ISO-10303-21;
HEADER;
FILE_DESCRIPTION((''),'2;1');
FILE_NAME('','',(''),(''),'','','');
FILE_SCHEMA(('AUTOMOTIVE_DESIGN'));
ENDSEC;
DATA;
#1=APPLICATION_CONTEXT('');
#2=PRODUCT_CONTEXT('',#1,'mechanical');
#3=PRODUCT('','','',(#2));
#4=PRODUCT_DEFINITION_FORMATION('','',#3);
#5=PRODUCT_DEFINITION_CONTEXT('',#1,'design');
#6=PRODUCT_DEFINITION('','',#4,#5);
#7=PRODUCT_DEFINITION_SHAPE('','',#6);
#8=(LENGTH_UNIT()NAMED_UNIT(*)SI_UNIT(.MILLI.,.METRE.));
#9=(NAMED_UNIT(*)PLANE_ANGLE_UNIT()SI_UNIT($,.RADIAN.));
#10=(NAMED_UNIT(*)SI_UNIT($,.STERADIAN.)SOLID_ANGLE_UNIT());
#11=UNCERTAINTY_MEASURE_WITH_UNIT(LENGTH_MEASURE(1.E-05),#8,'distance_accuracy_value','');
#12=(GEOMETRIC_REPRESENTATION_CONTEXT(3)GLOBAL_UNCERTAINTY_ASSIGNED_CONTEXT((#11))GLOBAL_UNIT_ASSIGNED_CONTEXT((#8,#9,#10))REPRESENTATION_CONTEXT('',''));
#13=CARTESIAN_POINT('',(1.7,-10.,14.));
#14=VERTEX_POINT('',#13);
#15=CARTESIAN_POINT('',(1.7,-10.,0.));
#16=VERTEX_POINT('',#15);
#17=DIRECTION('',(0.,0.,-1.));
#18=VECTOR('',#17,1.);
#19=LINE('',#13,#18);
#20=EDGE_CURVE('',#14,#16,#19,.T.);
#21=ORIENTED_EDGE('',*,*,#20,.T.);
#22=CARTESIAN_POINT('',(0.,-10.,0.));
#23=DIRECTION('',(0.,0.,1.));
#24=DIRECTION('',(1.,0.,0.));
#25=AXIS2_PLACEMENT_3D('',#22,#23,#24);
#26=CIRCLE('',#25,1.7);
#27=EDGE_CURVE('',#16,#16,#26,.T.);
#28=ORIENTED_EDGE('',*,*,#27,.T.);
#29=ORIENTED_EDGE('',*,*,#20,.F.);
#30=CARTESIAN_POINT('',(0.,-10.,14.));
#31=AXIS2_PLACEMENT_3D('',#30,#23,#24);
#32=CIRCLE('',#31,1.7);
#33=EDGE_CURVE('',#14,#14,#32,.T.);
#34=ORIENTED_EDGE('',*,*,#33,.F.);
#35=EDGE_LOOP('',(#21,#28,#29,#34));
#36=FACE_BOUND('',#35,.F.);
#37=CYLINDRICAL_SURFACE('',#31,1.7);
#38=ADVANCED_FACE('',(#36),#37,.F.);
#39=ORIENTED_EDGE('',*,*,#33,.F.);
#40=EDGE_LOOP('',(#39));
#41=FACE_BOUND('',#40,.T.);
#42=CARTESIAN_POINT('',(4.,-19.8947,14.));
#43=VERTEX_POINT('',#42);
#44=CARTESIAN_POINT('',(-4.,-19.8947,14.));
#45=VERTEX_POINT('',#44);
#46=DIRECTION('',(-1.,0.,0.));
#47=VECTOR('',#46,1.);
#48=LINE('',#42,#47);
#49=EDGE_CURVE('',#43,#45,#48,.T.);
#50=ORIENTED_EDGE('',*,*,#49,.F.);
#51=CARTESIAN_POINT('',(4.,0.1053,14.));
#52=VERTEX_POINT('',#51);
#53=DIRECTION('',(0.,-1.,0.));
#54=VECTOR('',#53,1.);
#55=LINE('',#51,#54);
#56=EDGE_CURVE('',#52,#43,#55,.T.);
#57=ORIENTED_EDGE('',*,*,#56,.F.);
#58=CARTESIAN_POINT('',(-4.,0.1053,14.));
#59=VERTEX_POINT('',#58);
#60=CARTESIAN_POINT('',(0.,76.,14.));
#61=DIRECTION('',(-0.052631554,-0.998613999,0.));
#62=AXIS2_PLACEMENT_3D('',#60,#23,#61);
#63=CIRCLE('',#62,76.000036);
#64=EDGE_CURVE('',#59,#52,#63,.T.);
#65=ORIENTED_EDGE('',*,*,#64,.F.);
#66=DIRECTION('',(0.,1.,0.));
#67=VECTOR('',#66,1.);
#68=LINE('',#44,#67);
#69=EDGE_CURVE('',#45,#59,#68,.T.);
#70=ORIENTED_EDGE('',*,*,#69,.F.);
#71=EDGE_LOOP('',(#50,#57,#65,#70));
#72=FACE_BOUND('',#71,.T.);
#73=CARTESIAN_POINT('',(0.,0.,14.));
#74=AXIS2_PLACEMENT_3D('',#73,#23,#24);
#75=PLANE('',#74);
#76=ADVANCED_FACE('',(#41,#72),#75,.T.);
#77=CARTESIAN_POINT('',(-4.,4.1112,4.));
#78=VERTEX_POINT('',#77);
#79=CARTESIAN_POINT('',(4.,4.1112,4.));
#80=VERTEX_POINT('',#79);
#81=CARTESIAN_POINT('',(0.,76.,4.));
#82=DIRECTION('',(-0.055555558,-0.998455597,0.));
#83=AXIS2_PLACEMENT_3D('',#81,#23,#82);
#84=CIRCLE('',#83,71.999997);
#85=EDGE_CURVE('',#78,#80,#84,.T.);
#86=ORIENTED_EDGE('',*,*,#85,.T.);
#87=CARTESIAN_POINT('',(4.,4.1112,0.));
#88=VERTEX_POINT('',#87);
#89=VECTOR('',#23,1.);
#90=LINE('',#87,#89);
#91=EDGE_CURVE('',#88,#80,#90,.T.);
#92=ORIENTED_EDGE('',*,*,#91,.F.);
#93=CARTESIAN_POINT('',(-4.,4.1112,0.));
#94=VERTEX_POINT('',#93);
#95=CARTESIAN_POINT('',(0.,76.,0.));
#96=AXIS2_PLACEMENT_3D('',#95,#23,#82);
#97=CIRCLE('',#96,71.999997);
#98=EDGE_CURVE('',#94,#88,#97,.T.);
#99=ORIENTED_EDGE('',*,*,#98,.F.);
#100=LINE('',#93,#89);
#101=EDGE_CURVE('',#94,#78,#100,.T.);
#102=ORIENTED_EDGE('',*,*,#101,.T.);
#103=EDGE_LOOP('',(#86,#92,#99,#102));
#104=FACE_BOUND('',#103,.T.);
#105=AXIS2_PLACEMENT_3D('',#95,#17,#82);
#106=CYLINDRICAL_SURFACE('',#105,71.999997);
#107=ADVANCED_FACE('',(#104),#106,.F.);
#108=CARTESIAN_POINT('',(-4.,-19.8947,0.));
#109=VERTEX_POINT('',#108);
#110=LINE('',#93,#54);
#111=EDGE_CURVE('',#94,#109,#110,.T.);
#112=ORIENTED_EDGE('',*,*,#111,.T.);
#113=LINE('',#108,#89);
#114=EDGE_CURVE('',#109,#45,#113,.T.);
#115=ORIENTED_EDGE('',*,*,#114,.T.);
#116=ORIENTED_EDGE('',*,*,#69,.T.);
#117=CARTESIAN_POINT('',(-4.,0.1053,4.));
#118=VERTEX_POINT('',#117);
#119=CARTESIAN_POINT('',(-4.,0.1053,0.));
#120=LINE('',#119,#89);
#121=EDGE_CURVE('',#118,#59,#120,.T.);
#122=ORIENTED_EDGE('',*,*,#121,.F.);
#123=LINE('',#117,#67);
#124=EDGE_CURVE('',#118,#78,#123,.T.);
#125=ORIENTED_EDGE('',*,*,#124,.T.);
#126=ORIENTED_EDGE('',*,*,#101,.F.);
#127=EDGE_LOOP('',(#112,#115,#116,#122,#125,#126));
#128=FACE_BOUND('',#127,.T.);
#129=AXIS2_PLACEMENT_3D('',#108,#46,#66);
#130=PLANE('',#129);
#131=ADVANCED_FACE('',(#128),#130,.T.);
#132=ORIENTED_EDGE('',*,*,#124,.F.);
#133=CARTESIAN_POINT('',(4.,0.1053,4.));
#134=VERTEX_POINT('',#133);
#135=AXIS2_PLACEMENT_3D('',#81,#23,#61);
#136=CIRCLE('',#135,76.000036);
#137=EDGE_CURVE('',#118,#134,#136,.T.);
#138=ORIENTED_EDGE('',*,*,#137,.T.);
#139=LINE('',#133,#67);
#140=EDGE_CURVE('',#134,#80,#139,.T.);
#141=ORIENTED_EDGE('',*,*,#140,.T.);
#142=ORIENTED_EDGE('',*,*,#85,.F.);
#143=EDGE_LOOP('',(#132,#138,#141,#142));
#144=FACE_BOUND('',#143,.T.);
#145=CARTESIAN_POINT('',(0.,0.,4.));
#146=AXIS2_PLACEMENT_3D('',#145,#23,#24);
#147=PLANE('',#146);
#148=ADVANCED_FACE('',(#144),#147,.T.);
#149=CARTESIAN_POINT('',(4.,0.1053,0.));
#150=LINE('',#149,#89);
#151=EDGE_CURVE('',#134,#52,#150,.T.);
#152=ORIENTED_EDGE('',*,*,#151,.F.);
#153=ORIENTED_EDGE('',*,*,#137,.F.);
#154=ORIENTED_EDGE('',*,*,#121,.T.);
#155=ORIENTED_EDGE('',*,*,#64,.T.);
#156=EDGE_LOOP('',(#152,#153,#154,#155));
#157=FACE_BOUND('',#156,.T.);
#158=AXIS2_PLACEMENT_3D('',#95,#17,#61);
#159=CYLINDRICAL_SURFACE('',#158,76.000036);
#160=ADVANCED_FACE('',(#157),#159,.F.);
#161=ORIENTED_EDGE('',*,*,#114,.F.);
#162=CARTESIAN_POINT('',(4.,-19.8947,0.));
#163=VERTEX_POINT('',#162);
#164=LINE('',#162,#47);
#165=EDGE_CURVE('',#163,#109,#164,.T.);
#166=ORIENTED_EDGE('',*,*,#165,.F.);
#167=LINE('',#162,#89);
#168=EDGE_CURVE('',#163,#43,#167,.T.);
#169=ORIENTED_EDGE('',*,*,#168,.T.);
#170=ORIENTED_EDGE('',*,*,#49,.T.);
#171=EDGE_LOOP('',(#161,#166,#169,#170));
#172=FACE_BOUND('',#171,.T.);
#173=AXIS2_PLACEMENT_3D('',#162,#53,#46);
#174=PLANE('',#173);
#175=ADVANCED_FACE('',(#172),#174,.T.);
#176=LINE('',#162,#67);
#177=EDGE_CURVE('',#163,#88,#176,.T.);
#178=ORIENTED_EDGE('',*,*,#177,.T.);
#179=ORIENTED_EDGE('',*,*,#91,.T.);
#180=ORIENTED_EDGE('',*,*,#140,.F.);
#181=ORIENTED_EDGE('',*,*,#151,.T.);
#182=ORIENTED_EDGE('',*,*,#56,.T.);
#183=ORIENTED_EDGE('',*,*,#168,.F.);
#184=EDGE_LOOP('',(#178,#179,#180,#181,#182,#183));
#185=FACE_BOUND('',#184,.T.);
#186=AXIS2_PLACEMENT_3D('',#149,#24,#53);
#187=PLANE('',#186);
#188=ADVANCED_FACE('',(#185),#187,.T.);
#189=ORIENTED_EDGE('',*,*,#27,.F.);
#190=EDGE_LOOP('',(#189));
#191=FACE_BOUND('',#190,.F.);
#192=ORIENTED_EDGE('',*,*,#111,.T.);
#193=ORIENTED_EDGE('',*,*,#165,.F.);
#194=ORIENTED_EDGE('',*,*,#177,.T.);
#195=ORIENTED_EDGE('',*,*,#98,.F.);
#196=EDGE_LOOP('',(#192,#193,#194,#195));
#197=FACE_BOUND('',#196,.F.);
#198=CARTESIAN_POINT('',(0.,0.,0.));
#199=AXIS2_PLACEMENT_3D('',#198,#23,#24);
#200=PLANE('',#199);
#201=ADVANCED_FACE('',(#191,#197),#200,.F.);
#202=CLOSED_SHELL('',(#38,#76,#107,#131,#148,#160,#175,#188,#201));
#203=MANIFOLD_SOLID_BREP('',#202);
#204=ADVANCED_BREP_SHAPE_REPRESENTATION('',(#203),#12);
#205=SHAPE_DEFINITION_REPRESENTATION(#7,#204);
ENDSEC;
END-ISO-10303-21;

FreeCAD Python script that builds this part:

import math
import FreeCAD as App
import Part
import Sketcher

V = App.Vector
Q = App.Units.Quantity

doc = App.newDocument("Part")
body = doc.addObject("PartDesign::Body", "Body")

# Sketch on XY plane
sketch1 = doc.addObject("Sketcher::SketchObject", "Sketch")
body.addObject(sketch1)
sketch1.AttachmentSupport = (doc.XY_Plane, [""])
sketch1.MapMode = "FlatFace"
sketch1.addGeometry(Part.ArcOfCircle(Part.Circle(V(0, 76, 0), V(0, 0, 1), 76.000036), math.radians(-93.01696), math.radians(-86.98304)), False)
sketch1.addGeometry(Part.LineSegment(V(-4, 0.1053, 0), V(-4, -19.8947, 0)), False)
sketch1.addGeometry(Part.LineSegment(V(-4, -19.8947, 0), V(4, -19.8947, 0)), False)
sketch1.addGeometry(Part.LineSegment(V(4, -19.8947, 0), V(4, 0.1053, 0)), False)
sketch1.addConstraint(Sketcher.Constraint("Coincident", 0, 1, 1, 1))
sketch1.addConstraint(Sketcher.Constraint("Coincident", 1, 2, 2, 1))
sketch1.addConstraint(Sketcher.Constraint("Coincident", 2, 2, 3, 1))
sketch1.addConstraint(Sketcher.Constraint("Coincident", 3, 2, 0, 2))
sketch1.addConstraint(Sketcher.Constraint("Vertical", 1))
sketch1.addConstraint(Sketcher.Constraint("Horizontal", 2))
sketch1.addConstraint(Sketcher.Constraint("Vertical", 3))
sketch1.addConstraint(Sketcher.Constraint("Symmetric", 0, 1, 3, 2, -2))
sketch1.addConstraint(Sketcher.Constraint("Radius", 0, Q("76 mm")))
sketch1.addConstraint(Sketcher.Constraint("DistanceX", 2, 1, 2, 2, Q("8 mm")))
sketch1.addConstraint(Sketcher.Constraint("DistanceY", 1, 2, 1, 1, Q("20 mm")))
sketch1.addConstraint(Sketcher.Constraint("DistanceY", -1, 1, 0, 3, Q("76 mm")))
pad1 = doc.addObject("PartDesign::Pad", "Pad")
body.addObject(pad1)
pad1.Profile = sketch1
pad1.Length = 14

# Sketch on XY plane
sketch2 = doc.addObject("Sketcher::SketchObject", "Sketch001")
body.addObject(sketch2)
sketch2.AttachmentSupport = (doc.XY_Plane, [""])
sketch2.MapMode = "FlatFace"
sketch2.addGeometry(Part.LineSegment(V(-4, 4.1112, 0), V(-4, 0.1053, 0)), False)
sketch2.addGeometry(Part.ArcOfCircle(Part.Circle(V(0, 76, 0), V(0, 0, 1), 76.000036), math.radians(-93.01696), math.radians(-86.98304)), False)
sketch2.addGeometry(Part.LineSegment(V(4, 0.1053, 0), V(4, 4.1112, 0)), False)
sketch2.addGeometry(Part.ArcOfCircle(Part.Circle(V(0, 76, 0), V(0, 0, 1), 71.999997), math.radians(-93.184739), math.radians(-86.815261)), False)
sketch2.addConstraint(Sketcher.Constraint("Coincident", 0, 2, 1, 1))
sketch2.addConstraint(Sketcher.Constraint("Coincident", 1, 2, 2, 1))
sketch2.addConstraint(Sketcher.Constraint("Coincident", 2, 2, 3, 2))
sketch2.addConstraint(Sketcher.Constraint("Coincident", 3, 1, 0, 1))
sketch2.addConstraint(Sketcher.Constraint("Vertical", 0))
sketch2.addConstraint(Sketcher.Constraint("Vertical", 2))
sketch2.addConstraint(Sketcher.Constraint("Coincident", 3, 3, 1, 3))
sketch2.addConstraint(Sketcher.Constraint("Symmetric", 0, 2, 1, 2, -2))
sketch2.addConstraint(Sketcher.Constraint("Radius", 1, Q("76 mm")))
sketch2.addConstraint(Sketcher.Constraint("DistanceY", -1, 1, 1, 3, Q("76 mm")))
sketch2.addConstraint(Sketcher.Constraint("DistanceX", 0, 2, -1, 1, Q("4 mm")))
sketch2.addConstraint(Sketcher.Constraint("Radius", 3, Q("72 mm")))
pad2 = doc.addObject("PartDesign::Pad", "Pad001")
body.addObject(pad2)
pad2.Profile = sketch2
pad2.Length = 4

# Sketch on XY plane
sketch3 = doc.addObject("Sketcher::SketchObject", "Sketch002")
body.addObject(sketch3)
sketch3.AttachmentSupport = (doc.XY_Plane, [""])
sketch3.MapMode = "FlatFace"
sketch3.AttachmentOffset = App.Placement(V(0, 0, 14), App.Rotation())
sketch3.addGeometry(Part.Circle(V(0, -10, 0), V(0, 0, 1), 1.7), False)
sketch3.addConstraint(Sketcher.Constraint("PointOnObject", 0, 3, -2))
sketch3.addConstraint(Sketcher.Constraint("Diameter", 0, Q("3.4 mm")))
sketch3.addConstraint(Sketcher.Constraint("DistanceY", 0, 3, -1, 1, Q("10 mm")))
pocket1 = doc.addObject("PartDesign::Pocket", "Pocket")
body.addObject(pocket1)
pocket1.Profile = sketch3
pocket1.Type = "ThroughAll"

doc.recompute()
